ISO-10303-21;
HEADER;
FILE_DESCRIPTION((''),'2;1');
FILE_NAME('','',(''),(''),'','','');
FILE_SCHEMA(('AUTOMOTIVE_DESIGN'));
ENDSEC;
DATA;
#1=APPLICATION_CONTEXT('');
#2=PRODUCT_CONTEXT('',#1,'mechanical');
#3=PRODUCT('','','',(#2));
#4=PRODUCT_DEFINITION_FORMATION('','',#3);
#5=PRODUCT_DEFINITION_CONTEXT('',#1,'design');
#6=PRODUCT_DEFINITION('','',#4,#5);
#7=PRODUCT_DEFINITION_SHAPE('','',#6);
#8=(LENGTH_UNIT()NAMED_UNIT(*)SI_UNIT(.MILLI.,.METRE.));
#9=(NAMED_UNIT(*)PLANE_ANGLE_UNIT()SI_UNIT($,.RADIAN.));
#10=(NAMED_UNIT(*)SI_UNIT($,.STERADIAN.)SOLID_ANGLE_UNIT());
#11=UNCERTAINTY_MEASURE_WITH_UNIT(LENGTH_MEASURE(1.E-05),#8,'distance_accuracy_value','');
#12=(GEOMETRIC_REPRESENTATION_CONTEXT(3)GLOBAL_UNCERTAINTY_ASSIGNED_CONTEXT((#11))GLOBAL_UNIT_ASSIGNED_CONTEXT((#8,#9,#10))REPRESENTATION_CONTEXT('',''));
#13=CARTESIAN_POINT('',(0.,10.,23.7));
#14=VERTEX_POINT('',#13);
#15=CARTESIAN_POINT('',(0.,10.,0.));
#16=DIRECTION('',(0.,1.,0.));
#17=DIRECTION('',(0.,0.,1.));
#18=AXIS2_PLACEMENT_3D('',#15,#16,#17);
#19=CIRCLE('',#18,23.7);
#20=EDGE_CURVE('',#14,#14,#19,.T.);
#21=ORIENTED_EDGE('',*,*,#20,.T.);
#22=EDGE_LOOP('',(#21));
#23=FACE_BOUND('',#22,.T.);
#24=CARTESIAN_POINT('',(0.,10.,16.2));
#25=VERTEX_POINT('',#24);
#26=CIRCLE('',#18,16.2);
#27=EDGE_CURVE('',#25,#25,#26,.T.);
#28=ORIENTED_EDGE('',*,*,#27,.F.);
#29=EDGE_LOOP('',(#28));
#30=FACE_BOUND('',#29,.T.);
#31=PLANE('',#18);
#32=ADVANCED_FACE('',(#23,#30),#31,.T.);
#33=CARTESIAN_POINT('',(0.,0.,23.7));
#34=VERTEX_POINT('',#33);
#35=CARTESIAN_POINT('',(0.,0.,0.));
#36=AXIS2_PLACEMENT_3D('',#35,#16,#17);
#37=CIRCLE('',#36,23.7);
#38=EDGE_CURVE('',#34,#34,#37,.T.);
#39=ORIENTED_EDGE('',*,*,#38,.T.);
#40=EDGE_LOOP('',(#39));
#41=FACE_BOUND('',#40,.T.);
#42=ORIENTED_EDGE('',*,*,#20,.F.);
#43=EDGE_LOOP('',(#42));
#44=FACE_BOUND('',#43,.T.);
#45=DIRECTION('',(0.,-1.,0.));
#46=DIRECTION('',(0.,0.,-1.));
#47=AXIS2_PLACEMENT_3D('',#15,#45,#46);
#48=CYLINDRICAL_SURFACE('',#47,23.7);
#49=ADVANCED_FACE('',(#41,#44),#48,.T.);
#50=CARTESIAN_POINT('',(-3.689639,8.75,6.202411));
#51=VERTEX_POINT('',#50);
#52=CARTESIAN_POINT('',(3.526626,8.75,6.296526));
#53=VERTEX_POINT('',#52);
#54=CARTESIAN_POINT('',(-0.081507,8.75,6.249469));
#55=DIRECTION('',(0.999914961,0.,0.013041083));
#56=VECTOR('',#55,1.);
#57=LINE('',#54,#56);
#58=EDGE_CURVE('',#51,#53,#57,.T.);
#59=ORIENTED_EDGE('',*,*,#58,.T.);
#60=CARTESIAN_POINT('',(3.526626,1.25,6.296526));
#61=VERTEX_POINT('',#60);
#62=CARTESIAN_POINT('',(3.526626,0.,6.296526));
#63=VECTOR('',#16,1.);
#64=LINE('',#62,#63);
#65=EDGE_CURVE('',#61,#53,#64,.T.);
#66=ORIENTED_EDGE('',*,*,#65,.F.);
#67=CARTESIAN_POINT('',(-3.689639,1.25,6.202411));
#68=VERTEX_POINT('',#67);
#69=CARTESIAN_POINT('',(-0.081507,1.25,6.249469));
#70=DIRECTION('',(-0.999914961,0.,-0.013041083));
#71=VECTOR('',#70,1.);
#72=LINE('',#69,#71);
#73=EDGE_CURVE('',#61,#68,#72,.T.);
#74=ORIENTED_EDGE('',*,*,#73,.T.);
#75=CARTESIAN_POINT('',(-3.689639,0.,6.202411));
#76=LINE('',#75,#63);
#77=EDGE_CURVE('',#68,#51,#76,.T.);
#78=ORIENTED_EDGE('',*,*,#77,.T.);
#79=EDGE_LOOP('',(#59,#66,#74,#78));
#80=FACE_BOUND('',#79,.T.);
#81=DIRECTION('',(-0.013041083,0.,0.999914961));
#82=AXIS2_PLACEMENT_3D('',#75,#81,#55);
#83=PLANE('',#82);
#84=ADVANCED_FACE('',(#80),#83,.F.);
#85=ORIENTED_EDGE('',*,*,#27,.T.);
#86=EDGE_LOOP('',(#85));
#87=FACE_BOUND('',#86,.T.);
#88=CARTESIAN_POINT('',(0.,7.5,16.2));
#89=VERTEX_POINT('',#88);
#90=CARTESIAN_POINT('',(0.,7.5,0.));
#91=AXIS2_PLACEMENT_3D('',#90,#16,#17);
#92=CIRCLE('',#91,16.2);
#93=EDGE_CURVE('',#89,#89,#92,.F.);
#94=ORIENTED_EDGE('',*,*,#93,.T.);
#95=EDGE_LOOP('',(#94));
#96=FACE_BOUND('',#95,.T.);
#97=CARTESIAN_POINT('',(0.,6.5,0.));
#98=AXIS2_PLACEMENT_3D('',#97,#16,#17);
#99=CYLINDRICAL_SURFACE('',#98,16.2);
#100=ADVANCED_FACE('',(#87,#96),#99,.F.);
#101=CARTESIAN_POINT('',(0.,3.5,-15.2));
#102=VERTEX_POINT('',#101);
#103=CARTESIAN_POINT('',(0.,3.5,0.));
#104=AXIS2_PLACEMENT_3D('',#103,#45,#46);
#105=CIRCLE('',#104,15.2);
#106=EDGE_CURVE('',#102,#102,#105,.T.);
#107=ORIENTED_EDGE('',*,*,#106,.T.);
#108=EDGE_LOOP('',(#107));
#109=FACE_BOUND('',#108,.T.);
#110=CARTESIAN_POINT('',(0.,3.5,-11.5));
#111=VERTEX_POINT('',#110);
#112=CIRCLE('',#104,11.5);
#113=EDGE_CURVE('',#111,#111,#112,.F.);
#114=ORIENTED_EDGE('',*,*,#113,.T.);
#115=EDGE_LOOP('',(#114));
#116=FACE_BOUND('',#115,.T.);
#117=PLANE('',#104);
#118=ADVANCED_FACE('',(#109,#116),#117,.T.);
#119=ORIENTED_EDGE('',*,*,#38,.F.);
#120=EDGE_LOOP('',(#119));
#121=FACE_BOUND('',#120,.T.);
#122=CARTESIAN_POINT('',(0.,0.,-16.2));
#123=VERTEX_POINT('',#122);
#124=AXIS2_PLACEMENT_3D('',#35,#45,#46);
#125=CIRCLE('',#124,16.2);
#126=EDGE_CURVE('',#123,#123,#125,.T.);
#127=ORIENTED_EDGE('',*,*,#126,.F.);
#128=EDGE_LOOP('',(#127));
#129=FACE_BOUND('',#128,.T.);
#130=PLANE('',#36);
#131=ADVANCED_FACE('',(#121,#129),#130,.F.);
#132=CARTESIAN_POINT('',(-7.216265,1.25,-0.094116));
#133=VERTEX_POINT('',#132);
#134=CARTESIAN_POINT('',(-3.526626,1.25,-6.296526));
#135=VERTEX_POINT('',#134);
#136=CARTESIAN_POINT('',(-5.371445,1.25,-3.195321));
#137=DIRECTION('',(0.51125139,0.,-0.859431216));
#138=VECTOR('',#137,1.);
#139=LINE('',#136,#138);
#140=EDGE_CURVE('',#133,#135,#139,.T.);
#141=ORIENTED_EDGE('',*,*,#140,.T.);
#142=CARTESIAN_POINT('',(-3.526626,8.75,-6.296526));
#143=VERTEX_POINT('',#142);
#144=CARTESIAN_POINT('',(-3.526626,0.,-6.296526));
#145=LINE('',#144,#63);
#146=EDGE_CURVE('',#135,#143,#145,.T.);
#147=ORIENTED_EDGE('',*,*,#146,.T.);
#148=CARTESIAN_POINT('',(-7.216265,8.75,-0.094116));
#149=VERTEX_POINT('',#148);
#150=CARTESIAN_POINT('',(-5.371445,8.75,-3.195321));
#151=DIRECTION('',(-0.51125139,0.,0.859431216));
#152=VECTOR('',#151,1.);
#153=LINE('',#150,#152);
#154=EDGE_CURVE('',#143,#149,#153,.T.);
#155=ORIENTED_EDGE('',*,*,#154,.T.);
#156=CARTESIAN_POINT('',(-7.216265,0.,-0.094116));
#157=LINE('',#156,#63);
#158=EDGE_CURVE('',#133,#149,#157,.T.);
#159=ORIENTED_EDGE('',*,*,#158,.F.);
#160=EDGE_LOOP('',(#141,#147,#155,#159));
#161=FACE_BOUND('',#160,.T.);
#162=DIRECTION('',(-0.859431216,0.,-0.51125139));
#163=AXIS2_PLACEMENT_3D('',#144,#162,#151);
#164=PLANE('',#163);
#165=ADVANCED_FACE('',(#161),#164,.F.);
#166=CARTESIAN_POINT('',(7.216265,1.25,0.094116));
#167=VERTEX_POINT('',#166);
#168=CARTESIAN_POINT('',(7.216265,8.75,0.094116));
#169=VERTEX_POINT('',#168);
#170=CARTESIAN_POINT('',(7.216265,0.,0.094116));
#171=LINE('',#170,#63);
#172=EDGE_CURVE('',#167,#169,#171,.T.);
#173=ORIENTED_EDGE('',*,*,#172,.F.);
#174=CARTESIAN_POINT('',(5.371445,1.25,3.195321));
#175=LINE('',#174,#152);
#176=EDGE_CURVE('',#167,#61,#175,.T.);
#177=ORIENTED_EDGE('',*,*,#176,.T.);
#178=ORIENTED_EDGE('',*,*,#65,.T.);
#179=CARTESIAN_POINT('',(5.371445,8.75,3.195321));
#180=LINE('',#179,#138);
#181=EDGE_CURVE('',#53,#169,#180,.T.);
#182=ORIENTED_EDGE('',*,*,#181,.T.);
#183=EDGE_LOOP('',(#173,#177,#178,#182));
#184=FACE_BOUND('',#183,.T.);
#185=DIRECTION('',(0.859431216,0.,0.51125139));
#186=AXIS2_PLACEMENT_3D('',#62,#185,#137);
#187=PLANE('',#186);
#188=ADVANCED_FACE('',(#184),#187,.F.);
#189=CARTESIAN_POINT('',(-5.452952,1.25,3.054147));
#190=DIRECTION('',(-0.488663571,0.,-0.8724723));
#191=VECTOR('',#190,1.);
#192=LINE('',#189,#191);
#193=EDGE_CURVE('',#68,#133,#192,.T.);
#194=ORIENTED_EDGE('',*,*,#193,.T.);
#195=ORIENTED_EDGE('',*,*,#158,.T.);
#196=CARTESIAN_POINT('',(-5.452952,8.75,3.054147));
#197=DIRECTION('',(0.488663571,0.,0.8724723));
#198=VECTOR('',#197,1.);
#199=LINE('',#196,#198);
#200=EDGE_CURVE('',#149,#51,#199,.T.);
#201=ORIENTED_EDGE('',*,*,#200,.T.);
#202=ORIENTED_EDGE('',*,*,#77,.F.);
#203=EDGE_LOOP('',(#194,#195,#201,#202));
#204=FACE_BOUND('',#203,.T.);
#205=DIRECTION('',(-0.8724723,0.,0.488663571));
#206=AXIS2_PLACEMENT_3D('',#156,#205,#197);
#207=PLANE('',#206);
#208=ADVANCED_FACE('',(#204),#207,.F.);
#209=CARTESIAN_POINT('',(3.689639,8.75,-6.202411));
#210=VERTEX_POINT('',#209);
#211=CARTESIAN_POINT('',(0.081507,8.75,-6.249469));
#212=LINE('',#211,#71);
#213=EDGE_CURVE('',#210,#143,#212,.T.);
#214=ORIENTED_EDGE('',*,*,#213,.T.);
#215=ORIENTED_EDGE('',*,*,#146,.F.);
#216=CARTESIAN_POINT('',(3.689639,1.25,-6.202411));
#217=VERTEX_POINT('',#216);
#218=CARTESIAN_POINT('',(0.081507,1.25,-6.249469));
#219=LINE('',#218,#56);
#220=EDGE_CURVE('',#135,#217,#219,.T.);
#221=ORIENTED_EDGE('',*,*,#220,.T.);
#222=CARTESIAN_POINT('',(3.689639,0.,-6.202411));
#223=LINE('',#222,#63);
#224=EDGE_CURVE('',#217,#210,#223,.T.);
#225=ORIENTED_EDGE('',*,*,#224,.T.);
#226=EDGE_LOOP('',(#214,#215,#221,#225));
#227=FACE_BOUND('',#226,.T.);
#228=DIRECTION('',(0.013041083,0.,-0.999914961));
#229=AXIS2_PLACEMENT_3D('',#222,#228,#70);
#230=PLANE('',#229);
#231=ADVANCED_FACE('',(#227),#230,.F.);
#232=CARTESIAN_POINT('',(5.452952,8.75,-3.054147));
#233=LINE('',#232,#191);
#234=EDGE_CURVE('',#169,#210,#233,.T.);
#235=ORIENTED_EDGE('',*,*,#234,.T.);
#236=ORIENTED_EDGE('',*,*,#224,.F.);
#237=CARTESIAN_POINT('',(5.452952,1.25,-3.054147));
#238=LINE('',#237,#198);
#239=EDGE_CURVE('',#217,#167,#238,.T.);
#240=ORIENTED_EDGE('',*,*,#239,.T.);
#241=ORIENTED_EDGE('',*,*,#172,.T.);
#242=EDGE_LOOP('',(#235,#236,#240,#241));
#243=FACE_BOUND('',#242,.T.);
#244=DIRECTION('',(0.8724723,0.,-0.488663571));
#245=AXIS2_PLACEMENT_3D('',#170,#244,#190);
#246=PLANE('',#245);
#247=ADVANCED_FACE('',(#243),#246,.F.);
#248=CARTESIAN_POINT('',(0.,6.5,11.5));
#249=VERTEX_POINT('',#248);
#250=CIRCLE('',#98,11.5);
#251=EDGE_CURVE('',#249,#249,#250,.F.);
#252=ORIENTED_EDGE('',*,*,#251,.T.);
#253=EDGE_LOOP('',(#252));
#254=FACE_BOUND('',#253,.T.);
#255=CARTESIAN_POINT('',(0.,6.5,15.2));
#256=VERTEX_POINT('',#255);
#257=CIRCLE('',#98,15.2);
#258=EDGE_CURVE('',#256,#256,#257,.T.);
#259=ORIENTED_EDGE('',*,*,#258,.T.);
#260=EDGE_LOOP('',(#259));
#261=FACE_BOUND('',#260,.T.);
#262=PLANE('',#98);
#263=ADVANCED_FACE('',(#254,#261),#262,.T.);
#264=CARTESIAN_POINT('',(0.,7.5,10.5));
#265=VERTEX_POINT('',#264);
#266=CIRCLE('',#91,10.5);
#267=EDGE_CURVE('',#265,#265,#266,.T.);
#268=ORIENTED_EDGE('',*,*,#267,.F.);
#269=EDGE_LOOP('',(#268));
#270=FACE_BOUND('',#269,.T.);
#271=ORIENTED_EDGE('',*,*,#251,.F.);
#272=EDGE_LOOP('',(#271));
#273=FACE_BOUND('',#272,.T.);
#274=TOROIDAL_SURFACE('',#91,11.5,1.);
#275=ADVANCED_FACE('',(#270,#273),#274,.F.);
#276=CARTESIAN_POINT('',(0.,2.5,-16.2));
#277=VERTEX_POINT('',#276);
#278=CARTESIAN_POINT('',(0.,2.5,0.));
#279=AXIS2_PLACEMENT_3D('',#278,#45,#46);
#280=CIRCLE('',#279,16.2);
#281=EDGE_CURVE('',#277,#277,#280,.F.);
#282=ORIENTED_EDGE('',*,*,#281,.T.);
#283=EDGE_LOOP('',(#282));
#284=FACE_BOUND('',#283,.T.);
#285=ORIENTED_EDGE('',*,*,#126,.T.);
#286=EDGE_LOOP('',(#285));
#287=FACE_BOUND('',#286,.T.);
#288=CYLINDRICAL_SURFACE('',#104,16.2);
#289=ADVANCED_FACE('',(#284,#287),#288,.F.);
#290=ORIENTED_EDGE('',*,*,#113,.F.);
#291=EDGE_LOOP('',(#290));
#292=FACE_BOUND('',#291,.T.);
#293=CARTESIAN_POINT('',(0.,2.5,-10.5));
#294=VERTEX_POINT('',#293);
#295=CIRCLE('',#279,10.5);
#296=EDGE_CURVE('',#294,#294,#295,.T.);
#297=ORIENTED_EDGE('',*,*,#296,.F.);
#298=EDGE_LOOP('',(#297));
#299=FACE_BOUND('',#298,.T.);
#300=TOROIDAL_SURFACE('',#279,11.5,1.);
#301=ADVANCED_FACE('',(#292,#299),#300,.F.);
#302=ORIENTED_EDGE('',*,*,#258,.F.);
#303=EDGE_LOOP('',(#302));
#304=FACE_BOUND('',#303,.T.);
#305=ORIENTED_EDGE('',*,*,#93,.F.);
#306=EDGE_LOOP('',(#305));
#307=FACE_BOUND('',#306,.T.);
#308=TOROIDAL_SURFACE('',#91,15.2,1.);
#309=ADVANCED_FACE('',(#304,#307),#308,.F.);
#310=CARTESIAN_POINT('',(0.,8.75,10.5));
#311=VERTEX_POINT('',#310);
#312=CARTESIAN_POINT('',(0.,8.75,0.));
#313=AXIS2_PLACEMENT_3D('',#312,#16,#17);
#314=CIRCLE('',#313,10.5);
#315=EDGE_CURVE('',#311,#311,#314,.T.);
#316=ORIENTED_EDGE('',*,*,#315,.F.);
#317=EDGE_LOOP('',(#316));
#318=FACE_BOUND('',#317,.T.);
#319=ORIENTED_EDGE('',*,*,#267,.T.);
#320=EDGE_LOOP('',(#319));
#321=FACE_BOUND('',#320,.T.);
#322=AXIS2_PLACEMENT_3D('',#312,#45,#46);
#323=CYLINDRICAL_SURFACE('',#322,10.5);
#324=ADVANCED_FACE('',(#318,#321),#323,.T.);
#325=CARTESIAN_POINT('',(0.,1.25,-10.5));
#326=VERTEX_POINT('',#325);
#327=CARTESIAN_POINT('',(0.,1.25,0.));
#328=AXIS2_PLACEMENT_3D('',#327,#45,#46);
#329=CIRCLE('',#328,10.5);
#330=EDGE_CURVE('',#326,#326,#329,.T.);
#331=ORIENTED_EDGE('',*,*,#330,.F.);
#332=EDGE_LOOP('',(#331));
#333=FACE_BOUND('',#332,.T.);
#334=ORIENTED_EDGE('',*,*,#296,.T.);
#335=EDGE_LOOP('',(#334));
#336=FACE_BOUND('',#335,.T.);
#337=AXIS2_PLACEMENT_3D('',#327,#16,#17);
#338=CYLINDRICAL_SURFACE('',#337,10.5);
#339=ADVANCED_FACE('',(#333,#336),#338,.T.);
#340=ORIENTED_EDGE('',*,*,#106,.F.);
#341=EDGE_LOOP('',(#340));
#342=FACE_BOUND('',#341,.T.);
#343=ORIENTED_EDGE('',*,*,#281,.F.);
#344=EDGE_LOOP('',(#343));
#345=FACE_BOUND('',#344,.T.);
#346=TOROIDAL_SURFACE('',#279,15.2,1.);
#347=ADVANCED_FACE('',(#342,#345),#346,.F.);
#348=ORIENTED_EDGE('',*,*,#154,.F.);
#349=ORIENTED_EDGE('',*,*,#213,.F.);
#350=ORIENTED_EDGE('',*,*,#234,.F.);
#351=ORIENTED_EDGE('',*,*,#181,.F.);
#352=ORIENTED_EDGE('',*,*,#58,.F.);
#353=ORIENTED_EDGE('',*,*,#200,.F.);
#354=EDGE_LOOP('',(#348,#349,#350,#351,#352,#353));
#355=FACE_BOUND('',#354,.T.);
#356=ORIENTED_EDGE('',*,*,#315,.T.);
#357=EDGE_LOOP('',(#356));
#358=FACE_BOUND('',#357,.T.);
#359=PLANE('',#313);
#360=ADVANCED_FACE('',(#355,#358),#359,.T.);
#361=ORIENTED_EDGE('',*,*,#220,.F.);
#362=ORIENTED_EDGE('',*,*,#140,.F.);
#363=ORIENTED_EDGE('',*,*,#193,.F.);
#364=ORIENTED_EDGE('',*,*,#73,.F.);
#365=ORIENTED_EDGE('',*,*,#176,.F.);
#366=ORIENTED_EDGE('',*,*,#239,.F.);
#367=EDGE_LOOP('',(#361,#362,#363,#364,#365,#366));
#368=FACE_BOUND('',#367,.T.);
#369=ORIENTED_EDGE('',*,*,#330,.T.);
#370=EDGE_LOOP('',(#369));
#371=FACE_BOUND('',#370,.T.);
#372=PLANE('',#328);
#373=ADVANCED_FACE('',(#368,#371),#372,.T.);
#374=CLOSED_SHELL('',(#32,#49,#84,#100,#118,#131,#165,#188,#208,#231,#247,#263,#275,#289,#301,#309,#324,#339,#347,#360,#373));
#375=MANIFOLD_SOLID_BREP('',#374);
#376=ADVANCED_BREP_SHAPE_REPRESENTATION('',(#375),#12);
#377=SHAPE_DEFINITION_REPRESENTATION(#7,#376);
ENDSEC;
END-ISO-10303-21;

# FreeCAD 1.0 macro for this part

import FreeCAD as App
import Part
import Sketcher

V = App.Vector


def edges_at(feature, points):
    """Names of the edges that pass closest to the given points."""
    edges = feature.Shape.Edges
    near = lambda p: min(range(len(edges)), key=lambda i: edges[i].distToShape(Part.Vertex(*p))[0])
    return sorted({f"Edge{near(p) + 1}" for p in points})


def add_polygon(sketch, points):
    """Adds a closed chain of lines whose ends are joined by coincident constraints."""
    first, n = sketch.GeometryCount, len(points)
    for a, b in zip(points, points[1:] + points[:1]):
        sketch.addGeometry(Part.LineSegment(App.Vector(*a, 0), App.Vector(*b, 0)), False)
    for i in range(n):
        sketch.addConstraint(Sketcher.Constraint("Coincident", first + i, 2, first + (i + 1) % n, 1))

doc = App.newDocument("Part")
body = doc.addObject("PartDesign::Body", "Body")

sketch1 = body.newObject("Sketcher::SketchObject", "Sketch")
sketch1.AttachmentSupport = (doc.getObject("XZ_Plane"), [""])
sketch1.MapMode = "FlatFace"
sketch1.addGeometry(Part.Circle(V(0, 0, 0), V(0, 0, 1), 24), False)
sketch1.addConstraint(Sketcher.Constraint("Coincident", 0, 3, -1, 1))
sketch1.addConstraint(Sketcher.Constraint("Diameter", 0, 47.4))
pad1 = body.newObject("PartDesign::Pad", "Pad")
pad1.Profile = sketch1
pad1.Length = 10
pad1.Reversed = True

sketch2 = body.newObject("Sketcher::SketchObject", "Sketch001")
sketch2.AttachmentSupport = (doc.getObject("XZ_Plane"), [""])
sketch2.MapMode = "FlatFace"
sketch2.AttachmentOffset = App.Placement(V(0, 0, -10), App.Rotation())
sketch2.addGeometry(Part.Circle(V(0, 0, 0), V(0, 0, 1), 16), False)
sketch2.addConstraint(Sketcher.Constraint("Coincident", 0, 3, -1, 1))
sketch2.addConstraint(Sketcher.Constraint("Diameter", 0, 32.4))
pocket1 = body.newObject("PartDesign::Pocket", "Pocket")
pocket1.Profile = sketch2
pocket1.Length = 3.5
pocket1.Reversed = True

sketch3 = body.newObject("Sketcher::SketchObject", "Sketch002")
sketch3.AttachmentSupport = (doc.getObject("XZ_Plane"), [""])
sketch3.MapMode = "FlatFace"
sketch3.AttachmentOffset = App.Placement(V(0, 0, -3.5), App.Rotation())
sketch3.addGeometry(Part.Circle(V(0, 0, 0), V(0, 0, 1), 16), False)
sketch3.addConstraint(Sketcher.Constraint("Coincident", 0, 3, -1, 1))
sketch3.addConstraint(Sketcher.Constraint("Diameter", 0, 32.4))
pocket2 = body.newObject("PartDesign::Pocket", "Pocket001")
pocket2.Profile = sketch3
pocket2.Length = 3.5
pocket2.Reversed = True

sketch4 = body.newObject("Sketcher::SketchObject", "Sketch003")
sketch4.AttachmentSupport = (doc.getObject("XZ_Plane"), [""])
sketch4.MapMode = "FlatFace"
sketch4.AttachmentOffset = App.Placement(V(0, 0, -6.5), App.Rotation())
sketch4.addGeometry(Part.Circle(V(0, 0, 0), V(0, 0, 1), 10), False)
sketch4.addConstraint(Sketcher.Constraint("Coincident", 0, 3, -1, 1))
sketch4.addConstraint(Sketcher.Constraint("Diameter", 0, 21.0))
pad2 = body.newObject("PartDesign::Pad", "Pad001")
pad2.Profile = sketch4
pad2.Length = 2.25
pad2.Reversed = True

sketch5 = body.newObject("Sketcher::SketchObject", "Sketch004")
sketch5.AttachmentSupport = (doc.getObject("XZ_Plane"), [""])
sketch5.MapMode = "FlatFace"
sketch5.AttachmentOffset = App.Placement(V(0, 0, -1.25), App.Rotation())
sketch5.addGeometry(Part.Circle(V(0, 0, 0), V(0, 0, 1), 10), False)
sketch5.addConstraint(Sketcher.Constraint("Coincident", 0, 3, -1, 1))
sketch5.addConstraint(Sketcher.Constraint("Diameter", 0, 21.0))
pad3 = body.newObject("PartDesign::Pad", "Pad002")
pad3.Profile = sketch5
pad3.Length = 2.25
pad3.Reversed = True

sketch6 = body.newObject("Sketcher::SketchObject", "Sketch005")
sketch6.AttachmentSupport = (doc.getObject("XZ_Plane"), [""])
sketch6.MapMode = "FlatFace"
sketch6.AttachmentOffset = App.Placement(V(0, 0, -6.5), App.Rotation())
add_polygon(sketch6, [(4, -6), (-4, -6), (-7, 0), (-4, 6), (4, 6), (7, 0)])
sketch6.addConstraint(Sketcher.Constraint("Symmetric", 0, 2, 3, 2, -1, 1))
sketch6.addConstraint(Sketcher.Constraint("Symmetric", 1, 2, 4, 2, -1, 1))
sketch6.addConstraint(Sketcher.Constraint("Symmetric", 2, 2, 5, 2, -1, 1))
sketch6.addConstraint(Sketcher.Constraint("Equal", 0, 1))
sketch6.addConstraint(Sketcher.Constraint("Equal", 1, 2))
sketch6.addConstraint(Sketcher.Constraint("Distance", 0, 7.216878))
sketch6.addConstraint(Sketcher.Constraint("DistanceX", 2, 2, -1, 1, 3.689639))
sketch6.addConstraint(Sketcher.Constraint("DistanceY", -1, 1, 2, 2, 6.202411))
sketch6.addConstraint(Sketcher.Constraint("DistanceX", 1, 2, 0, 2, 3.689639))
pocket3 = body.newObject("PartDesign::Pocket", "Pocket002")
pocket3.Profile = sketch6
pocket3.Type = "ThroughAll"
pocket3.Midplane = True
doc.recompute()

fillet = body.newObject("PartDesign::Fillet", "Fillet")
fillet.Base = (pocket3, edges_at(pocket3, [(0, 3.5, -16.2), (0, 6.5, -16.2)]))
fillet.Radius = 1
doc.recompute()

fillet2 = body.newObject("PartDesign::Fillet", "Fillet001")
fillet2.Base = (fillet, edges_at(fillet, [(0, 6.5, -10.5), (0, 3.5, -10.5)]))
fillet2.Radius = 1

doc.recompute()
